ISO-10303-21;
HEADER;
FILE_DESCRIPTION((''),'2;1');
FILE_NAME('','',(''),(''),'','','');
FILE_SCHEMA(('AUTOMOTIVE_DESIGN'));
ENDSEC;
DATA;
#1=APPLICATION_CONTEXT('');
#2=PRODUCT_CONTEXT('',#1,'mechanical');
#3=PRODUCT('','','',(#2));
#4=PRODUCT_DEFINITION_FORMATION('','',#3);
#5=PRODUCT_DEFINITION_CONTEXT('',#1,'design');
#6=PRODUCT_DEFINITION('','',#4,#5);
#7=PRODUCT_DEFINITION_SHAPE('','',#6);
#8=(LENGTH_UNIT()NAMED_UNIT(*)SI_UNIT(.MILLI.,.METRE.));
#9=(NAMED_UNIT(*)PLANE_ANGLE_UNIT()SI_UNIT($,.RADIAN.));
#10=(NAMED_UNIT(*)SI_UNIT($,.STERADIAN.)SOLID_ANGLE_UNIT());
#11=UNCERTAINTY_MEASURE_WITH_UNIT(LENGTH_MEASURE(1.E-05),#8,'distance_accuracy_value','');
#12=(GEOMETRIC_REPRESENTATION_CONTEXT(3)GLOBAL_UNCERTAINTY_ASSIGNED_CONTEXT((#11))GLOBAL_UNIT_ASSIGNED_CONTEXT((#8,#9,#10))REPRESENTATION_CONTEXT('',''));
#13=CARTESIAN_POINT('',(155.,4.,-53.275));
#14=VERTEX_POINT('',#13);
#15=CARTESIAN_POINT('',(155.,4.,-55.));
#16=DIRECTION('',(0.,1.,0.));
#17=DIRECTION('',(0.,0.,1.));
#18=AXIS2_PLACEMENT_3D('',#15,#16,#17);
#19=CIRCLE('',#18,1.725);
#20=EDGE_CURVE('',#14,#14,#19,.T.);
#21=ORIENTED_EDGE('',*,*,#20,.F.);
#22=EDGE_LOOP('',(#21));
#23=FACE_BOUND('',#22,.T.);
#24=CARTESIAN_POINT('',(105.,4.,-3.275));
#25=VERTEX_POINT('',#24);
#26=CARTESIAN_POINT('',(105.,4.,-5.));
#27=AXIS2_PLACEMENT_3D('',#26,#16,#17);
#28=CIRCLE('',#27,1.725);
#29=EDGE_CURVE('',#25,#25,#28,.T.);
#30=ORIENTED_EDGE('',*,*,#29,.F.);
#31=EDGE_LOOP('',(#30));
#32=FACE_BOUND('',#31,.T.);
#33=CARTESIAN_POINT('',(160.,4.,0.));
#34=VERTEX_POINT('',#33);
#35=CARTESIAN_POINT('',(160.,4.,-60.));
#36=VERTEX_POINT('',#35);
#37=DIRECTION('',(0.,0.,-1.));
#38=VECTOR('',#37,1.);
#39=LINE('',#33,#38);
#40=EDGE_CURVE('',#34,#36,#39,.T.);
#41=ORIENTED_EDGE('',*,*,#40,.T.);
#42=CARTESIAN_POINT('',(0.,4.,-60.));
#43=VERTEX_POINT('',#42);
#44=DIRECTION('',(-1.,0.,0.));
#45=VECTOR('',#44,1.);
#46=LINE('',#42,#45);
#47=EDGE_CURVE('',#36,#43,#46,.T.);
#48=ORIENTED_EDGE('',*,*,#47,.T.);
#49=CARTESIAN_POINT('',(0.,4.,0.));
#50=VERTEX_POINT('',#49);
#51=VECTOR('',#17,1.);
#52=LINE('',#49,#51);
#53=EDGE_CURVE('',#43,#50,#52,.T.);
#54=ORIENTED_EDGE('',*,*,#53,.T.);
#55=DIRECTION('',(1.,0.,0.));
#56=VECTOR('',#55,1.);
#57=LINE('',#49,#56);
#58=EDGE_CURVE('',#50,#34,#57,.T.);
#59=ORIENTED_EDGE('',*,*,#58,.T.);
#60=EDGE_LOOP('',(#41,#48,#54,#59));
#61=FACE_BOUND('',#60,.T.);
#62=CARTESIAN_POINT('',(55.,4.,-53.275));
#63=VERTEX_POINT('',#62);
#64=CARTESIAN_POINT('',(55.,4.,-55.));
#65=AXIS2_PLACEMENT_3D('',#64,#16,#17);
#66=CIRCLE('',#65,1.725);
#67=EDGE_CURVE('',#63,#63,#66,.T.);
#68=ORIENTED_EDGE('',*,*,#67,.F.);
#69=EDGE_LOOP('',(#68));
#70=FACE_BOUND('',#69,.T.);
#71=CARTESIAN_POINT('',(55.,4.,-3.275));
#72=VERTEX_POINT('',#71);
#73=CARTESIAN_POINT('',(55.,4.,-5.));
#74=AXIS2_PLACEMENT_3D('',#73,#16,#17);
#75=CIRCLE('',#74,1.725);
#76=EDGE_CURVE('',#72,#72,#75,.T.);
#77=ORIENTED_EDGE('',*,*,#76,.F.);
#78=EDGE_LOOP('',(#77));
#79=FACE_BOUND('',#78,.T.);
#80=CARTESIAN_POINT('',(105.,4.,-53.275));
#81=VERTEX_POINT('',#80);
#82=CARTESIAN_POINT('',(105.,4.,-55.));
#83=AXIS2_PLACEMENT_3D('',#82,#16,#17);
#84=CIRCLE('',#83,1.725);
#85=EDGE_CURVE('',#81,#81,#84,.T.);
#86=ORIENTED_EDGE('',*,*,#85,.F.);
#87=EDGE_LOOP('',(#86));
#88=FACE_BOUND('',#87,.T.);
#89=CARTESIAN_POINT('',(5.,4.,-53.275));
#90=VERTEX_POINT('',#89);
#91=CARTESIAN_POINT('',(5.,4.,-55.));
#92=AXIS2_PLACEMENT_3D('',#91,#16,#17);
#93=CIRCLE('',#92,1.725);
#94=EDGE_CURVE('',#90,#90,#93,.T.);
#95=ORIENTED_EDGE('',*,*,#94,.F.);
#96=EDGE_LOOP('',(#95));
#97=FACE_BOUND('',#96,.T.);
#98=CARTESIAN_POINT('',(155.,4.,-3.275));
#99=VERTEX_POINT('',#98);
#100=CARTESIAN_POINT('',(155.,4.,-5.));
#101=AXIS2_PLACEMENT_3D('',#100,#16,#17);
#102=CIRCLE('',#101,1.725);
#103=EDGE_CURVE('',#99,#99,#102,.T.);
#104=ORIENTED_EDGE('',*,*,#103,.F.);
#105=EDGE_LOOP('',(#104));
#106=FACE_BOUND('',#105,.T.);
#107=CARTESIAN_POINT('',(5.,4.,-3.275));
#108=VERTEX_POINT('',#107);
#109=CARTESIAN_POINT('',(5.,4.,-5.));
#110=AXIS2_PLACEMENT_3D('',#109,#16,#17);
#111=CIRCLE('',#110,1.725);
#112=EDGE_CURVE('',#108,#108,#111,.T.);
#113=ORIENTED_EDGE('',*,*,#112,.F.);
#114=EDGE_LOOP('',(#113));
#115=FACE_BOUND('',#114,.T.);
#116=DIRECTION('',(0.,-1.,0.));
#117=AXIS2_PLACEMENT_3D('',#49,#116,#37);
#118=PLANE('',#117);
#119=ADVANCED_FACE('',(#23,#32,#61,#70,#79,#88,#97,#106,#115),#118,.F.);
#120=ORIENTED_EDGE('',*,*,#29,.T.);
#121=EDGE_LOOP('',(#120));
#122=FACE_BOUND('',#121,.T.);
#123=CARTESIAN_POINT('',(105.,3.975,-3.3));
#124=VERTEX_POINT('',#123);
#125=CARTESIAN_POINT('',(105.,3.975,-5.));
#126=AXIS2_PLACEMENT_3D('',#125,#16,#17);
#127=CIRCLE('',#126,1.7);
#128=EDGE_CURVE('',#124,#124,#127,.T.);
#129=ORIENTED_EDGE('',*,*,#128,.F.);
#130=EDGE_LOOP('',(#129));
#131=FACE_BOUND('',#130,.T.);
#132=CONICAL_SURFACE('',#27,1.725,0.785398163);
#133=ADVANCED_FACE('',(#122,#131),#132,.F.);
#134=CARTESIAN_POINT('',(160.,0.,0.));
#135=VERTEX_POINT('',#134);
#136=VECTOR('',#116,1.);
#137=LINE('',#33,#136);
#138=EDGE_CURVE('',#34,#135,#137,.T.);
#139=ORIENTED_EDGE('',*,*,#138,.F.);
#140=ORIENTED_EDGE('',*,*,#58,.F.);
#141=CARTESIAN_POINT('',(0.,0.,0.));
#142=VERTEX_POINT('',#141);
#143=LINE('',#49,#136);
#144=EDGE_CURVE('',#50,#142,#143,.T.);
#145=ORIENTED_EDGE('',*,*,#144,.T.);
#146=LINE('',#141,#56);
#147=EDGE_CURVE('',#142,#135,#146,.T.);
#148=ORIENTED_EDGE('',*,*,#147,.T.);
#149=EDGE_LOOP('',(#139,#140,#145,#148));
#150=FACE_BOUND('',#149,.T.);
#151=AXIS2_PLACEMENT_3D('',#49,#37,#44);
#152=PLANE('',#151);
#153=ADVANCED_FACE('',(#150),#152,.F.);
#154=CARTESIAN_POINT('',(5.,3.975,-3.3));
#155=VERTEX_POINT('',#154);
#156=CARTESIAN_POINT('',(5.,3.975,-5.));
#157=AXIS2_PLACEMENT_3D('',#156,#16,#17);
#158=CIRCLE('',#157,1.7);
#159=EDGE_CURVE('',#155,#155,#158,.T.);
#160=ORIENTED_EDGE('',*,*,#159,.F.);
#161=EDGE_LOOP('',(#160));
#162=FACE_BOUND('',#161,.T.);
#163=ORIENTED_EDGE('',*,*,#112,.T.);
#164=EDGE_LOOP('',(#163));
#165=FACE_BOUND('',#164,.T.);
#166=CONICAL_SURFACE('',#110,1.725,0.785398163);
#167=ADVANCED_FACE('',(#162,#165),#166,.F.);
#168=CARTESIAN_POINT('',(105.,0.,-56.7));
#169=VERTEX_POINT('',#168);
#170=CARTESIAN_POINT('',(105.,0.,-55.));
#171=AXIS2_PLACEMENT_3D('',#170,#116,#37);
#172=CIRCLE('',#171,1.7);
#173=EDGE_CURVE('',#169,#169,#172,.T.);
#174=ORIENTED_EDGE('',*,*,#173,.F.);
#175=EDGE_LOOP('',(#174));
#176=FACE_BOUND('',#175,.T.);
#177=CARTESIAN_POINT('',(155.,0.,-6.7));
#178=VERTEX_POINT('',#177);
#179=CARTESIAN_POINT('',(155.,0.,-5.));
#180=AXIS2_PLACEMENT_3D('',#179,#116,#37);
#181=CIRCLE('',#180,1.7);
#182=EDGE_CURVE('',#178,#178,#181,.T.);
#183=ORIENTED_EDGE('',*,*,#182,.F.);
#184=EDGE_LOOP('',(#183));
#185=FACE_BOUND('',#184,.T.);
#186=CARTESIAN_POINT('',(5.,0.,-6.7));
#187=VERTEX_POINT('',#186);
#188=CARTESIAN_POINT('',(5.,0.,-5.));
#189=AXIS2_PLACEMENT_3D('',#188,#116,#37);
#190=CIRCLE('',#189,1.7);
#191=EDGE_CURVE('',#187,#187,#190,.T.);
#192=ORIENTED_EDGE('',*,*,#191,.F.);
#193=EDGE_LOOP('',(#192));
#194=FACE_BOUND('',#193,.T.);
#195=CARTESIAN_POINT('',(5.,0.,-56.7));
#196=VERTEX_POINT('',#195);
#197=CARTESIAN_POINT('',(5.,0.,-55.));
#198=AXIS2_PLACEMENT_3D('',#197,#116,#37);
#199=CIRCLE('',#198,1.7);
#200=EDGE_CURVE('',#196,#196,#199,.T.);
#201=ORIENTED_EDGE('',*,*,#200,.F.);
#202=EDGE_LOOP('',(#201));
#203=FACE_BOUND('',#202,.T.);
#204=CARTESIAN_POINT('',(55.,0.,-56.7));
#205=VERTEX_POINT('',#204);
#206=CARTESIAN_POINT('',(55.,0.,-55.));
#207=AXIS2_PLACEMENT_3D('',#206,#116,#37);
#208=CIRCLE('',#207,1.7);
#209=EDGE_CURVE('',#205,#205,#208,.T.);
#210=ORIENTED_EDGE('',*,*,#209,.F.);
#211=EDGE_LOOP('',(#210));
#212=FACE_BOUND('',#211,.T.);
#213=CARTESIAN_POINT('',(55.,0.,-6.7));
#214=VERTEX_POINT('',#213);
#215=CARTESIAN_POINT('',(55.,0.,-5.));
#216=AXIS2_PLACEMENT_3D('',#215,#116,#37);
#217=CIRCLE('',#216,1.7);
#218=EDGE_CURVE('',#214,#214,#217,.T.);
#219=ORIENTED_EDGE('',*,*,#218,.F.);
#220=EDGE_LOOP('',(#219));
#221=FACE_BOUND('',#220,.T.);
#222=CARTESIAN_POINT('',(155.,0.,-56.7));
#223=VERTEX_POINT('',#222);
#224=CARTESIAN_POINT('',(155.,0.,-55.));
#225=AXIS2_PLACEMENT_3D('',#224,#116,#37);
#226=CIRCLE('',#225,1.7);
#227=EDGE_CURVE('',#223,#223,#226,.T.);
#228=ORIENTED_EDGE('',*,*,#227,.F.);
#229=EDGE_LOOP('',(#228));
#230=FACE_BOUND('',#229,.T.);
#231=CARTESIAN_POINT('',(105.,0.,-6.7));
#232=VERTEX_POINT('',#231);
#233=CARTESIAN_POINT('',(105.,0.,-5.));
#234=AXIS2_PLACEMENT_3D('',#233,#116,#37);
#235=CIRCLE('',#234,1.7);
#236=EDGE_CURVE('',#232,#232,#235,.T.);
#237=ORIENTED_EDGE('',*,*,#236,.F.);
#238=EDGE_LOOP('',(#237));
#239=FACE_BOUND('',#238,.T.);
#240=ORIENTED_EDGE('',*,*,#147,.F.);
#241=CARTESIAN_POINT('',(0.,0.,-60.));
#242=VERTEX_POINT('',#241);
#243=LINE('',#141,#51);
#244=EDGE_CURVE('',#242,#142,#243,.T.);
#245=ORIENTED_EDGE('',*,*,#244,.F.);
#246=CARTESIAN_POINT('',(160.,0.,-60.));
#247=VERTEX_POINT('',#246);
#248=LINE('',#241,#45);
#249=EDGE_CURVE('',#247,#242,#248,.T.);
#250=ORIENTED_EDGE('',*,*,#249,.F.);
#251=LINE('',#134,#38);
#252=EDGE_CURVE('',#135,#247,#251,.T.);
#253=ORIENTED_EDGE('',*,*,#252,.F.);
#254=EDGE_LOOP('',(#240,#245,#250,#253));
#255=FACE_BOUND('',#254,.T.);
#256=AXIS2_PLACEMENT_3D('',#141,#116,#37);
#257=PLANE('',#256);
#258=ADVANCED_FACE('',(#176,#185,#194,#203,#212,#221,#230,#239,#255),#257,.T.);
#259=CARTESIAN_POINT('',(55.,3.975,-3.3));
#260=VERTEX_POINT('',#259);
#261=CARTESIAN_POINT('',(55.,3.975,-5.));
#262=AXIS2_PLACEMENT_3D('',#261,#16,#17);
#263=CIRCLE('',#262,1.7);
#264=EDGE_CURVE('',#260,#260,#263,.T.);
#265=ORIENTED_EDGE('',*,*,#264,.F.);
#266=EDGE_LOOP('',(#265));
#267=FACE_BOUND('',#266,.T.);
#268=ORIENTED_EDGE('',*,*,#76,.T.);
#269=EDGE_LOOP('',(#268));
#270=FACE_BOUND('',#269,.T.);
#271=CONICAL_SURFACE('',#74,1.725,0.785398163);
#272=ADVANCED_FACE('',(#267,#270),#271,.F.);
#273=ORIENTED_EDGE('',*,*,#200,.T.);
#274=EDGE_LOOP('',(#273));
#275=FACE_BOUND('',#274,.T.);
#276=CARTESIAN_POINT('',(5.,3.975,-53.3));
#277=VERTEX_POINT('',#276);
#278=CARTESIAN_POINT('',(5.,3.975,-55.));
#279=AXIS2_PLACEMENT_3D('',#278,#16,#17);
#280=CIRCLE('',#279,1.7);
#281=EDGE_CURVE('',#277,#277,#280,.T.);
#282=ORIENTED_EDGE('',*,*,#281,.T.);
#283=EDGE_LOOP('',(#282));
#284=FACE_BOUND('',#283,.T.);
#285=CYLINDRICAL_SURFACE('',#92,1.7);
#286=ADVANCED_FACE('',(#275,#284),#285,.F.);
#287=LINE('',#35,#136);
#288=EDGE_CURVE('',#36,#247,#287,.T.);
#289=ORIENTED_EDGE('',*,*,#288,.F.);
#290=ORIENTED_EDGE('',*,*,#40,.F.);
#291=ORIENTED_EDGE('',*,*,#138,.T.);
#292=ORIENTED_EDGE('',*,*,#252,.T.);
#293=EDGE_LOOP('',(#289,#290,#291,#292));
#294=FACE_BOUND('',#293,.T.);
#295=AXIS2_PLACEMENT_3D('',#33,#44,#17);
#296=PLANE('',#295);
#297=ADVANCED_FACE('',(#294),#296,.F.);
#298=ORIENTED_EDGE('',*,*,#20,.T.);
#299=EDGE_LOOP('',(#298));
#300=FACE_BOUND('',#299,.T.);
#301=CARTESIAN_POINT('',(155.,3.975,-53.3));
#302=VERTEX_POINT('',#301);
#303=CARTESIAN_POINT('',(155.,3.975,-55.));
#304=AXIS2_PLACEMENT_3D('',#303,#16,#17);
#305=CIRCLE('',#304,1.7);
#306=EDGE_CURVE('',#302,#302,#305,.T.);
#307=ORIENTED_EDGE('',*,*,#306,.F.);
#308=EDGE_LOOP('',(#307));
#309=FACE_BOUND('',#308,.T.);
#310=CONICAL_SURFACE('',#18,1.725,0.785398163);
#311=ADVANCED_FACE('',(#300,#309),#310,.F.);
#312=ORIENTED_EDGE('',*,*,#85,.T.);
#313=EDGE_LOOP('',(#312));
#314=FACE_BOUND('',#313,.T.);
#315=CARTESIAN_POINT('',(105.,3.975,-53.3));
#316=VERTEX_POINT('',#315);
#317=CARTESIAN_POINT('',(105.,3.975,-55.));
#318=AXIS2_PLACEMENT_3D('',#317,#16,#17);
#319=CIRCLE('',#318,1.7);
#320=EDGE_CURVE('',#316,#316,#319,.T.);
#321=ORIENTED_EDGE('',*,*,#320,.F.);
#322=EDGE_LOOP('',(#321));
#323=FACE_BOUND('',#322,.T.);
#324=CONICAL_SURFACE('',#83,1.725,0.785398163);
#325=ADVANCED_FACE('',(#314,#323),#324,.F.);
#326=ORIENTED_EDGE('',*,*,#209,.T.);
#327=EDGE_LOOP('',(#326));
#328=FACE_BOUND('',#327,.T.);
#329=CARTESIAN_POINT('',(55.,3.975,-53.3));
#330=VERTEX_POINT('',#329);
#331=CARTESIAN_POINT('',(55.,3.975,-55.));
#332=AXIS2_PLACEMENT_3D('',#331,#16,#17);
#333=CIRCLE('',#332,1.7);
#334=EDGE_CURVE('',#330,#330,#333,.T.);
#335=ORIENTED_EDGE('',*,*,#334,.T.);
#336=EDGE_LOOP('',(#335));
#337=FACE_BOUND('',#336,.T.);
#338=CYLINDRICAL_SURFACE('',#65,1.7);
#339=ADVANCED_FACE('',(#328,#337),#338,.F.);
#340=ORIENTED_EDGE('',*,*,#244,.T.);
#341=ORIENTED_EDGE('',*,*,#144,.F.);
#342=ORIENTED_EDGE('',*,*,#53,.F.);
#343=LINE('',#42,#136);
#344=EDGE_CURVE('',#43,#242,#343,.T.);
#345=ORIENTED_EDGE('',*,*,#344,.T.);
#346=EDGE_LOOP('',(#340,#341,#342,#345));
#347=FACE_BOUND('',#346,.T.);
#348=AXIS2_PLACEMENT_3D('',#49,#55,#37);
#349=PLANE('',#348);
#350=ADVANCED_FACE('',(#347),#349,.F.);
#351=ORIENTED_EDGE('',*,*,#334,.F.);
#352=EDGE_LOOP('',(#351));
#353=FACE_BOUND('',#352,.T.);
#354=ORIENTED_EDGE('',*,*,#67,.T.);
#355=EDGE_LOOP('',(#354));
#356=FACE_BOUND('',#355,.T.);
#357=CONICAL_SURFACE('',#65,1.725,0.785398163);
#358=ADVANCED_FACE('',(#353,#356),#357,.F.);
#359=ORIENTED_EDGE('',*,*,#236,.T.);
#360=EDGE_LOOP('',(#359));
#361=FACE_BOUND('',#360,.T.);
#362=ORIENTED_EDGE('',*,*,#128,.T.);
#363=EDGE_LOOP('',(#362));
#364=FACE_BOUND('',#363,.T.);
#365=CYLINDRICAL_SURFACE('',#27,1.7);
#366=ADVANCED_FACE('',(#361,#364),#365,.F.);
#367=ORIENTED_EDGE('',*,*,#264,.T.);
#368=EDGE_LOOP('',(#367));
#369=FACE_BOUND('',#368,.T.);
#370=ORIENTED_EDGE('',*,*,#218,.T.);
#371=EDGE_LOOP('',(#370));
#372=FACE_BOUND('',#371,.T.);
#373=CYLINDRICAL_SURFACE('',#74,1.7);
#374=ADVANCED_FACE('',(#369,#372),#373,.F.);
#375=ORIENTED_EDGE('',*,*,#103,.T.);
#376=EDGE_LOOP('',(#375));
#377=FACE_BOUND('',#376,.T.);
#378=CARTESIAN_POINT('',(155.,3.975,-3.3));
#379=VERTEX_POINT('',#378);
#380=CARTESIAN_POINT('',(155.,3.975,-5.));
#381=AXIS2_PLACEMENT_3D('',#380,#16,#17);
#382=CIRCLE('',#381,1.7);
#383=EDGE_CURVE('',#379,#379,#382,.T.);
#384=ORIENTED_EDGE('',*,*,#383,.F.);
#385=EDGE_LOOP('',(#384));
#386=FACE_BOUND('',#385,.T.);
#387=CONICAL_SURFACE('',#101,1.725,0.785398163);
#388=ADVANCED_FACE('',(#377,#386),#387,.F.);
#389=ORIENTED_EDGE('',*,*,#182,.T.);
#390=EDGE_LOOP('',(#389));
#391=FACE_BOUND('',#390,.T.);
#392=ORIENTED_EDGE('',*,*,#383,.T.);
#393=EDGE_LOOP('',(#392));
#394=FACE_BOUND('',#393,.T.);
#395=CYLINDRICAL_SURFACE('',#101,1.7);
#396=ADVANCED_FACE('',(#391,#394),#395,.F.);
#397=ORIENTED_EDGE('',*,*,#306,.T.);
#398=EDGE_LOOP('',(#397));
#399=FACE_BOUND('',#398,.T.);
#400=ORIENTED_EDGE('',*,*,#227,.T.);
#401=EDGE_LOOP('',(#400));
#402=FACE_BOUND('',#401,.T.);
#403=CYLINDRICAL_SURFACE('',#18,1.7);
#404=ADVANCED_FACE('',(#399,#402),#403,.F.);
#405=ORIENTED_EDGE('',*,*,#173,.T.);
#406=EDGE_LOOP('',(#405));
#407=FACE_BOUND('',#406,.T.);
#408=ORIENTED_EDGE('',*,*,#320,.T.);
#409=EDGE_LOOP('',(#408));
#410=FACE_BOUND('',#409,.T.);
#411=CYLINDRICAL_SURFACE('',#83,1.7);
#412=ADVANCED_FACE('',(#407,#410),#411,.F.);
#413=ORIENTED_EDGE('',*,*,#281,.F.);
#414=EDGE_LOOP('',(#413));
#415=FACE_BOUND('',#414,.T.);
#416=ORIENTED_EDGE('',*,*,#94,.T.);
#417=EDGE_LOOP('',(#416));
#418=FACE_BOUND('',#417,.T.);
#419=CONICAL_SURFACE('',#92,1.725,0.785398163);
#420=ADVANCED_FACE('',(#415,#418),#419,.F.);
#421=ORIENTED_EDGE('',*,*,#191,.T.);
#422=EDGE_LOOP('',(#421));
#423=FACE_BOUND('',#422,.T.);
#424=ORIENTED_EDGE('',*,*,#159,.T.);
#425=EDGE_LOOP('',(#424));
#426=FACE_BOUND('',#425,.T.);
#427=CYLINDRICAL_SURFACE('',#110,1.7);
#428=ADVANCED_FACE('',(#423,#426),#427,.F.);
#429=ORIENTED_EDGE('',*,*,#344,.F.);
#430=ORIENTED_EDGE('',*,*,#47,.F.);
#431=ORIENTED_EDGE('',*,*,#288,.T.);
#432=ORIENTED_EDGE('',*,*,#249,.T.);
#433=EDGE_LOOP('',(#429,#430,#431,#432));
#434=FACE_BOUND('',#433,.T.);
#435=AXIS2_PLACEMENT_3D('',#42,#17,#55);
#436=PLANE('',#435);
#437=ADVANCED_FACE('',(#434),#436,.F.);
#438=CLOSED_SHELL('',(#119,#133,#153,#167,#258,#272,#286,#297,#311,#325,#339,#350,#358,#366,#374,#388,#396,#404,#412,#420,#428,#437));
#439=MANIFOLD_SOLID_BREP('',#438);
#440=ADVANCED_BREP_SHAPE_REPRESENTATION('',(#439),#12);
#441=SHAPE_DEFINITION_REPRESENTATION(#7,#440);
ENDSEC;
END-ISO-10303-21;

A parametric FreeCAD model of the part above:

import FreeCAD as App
import Part
import Sketcher
Q = App.Units.Quantity


def add_polygon(sketch, points):
    """Adds a closed chain of lines whose ends are joined by coincident constraints."""
    first, n = sketch.GeometryCount, len(points)
    for a, b in zip(points, points[1:] + points[:1]):
        sketch.addGeometry(Part.LineSegment(App.Vector(*a, 0), App.Vector(*b, 0)), False)
    for i in range(n):
        sketch.addConstraint(Sketcher.Constraint("Coincident", first + i, 2, first + (i + 1) % n, 1))

doc = App.newDocument("Part")
body = doc.addObject("PartDesign::Body", "Body")

sketch1 = body.newObject("Sketcher::SketchObject", "Sketch")
sketch1.AttachmentSupport = (doc.getObject("XZ_Plane"), [""])
sketch1.MapMode = "FlatFace"
add_polygon(sketch1, [(0, -60), (0, 0), (160, 0), (160, -60)])
sketch1.addConstraint([
    Sketcher.Constraint("Vertical", 0),
    Sketcher.Constraint("Horizontal", 1),
    Sketcher.Constraint("Vertical", 2),
    Sketcher.Constraint("Horizontal", 3),
    Sketcher.Constraint("Coincident", 0, 2, -1, 1),
    Sketcher.Constraint("DistanceX", 1, 1, 1, 2, Q("160 mm")),
    Sketcher.Constraint("DistanceY", 0, 1, 0, 2, Q("60 mm")),
])
pad1 = body.newObject("PartDesign::Pad", "Pad")
pad1.Profile = sketch1
pad1.Length = 4
pad1.Reversed = True

sketch2 = body.newObject("Sketcher::SketchObject", "Sketch001")
sketch2.AttachmentSupport = (doc.getObject("XZ_Plane"), [""])
sketch2.MapMode = "FlatFace"
sketch2.AttachmentOffset = App.Placement(App.Vector(0, 0, -4), App.Rotation())
sketch2.addGeometry([
    Part.Circle(App.Vector(155, -55, 0), App.Vector(0, 0, 1), 1.7),
    Part.Circle(App.Vector(5, -5, 0), App.Vector(0, 0, 1), 1.7),
    Part.Circle(App.Vector(55, -5, 0), App.Vector(0, 0, 1), 1.7),
    Part.Circle(App.Vector(105, -5, 0), App.Vector(0, 0, 1), 1.7),
    Part.Circle(App.Vector(155, -5, 0), App.Vector(0, 0, 1), 1.7),
    Part.Circle(App.Vector(5, -55, 0), App.Vector(0, 0, 1), 1.7),
    Part.Circle(App.Vector(55, -55, 0), App.Vector(0, 0, 1), 1.7),
    Part.Circle(App.Vector(105, -55, 0), App.Vector(0, 0, 1), 1.7),
], False)
sketch2.addConstraint([
    Sketcher.Constraint("Equal", 0, 1),
    Sketcher.Constraint("Equal", 1, 2),
    Sketcher.Constraint("Equal", 2, 3),
    Sketcher.Constraint("Equal", 3, 4),
    Sketcher.Constraint("Equal", 4, 5),
    Sketcher.Constraint("Equal", 5, 6),
    Sketcher.Constraint("Equal", 6, 7),
    Sketcher.Constraint("Horizontal", 1, 3, 2, 3),
    Sketcher.Constraint("Horizontal", 2, 3, 3, 3),
    Sketcher.Constraint("Horizontal", 3, 3, 4, 3),
    Sketcher.Constraint("Horizontal", 0, 3, 5, 3),
    Sketcher.Constraint("Horizontal", 5, 3, 6, 3),
    Sketcher.Constraint("Horizontal", 6, 3, 7, 3),
    Sketcher.Constraint("Vertical", 0, 3, 4, 3),
    Sketcher.Constraint("Vertical", 1, 3, 5, 3),
    Sketcher.Constraint("Vertical", 2, 3, 6, 3),
    Sketcher.Constraint("Vertical", 3, 3, 7, 3),
    Sketcher.Constraint("Diameter", 0, Q("3.4 mm")),
    Sketcher.Constraint("DistanceX", -1, 1, 0, 3, Q("155 mm")),
    Sketcher.Constraint("DistanceY", 0, 3, -1, 1, Q("55 mm")),
    Sketcher.Constraint("DistanceX", -1, 1, 1, 3, Q("5 mm")),
    Sketcher.Constraint("DistanceY", 1, 3, -1, 1, Q("5 mm")),
    Sketcher.Constraint("DistanceX", -1, 1, 2, 3, Q("55 mm")),
    Sketcher.Constraint("DistanceX", -1, 1, 3, 3, Q("105 mm")),
])
doc.recompute()
hole = body.newObject("PartDesign::Hole", "Hole")
hole.Profile = sketch2
hole.ThreadType = "None"
hole.Diameter = 3.4
hole.DepthType = "ThroughAll"
hole.HoleCutType = "Countersink"
hole.HoleCutDiameter = 3.45
hole.HoleCutCountersinkAngle = 90
hole.Reversed = True

doc.recompute()
